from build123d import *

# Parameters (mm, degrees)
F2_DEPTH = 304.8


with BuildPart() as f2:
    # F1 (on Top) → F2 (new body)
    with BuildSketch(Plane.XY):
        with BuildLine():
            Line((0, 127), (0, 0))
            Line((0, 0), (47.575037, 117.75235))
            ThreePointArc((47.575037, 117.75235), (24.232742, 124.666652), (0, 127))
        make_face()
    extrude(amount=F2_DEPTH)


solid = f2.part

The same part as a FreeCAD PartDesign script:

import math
import FreeCAD as App
import Part
import Sketcher
from FreeCAD import Vector
Q = App.Units.Quantity

doc = App.newDocument("Part")
params = doc.addObject("Spreadsheet::Sheet", "Params")
for row, (alias, value) in enumerate([
    ("sketch1_height", "5 in"),
    ("sketch1_length", "5 in"),
    ("pad1_length", "12 in"),
], start=1):
    params.set(f"A{row}", alias)
    params.set(f"B{row}", "=" + value)
    params.setAlias(f"B{row}", alias)

body = doc.addObject("PartDesign::Body", "Body")

# Sketch on XY plane
sketch1 = body.newObject("Sketcher::SketchObject", "Sketch")
sketch1.AttachmentSupport = (doc.getObject("XY_Plane"), [""])
sketch1.MapMode = "FlatFace"
sketch1.addGeometry([
    Part.LineSegment(Vector(0, 127, 0), Vector(0, 0, 0)),
    Part.LineSegment(Vector(0, 0, 0), Vector(48, 118, 0)),
    Part.ArcOfCircle(Part.Circle(Vector(0, 0, 0), Vector(0, 0, 1), 127), math.radians(68), math.radians(90)),
], False)
sketch1.addConstraint([
    Sketcher.Constraint("Coincident", 0, 2, 1, 1),
    Sketcher.Constraint("Coincident", 1, 2, 2, 1),
    Sketcher.Constraint("Coincident", 2, 2, 0, 1),
    Sketcher.Constraint("Vertical", 0),
    Sketcher.Constraint("Coincident", 0, 2, -1, 1),
    Sketcher.Constraint("DistanceY", 0, 2, 0, 1, Q("5 in")),
    Sketcher.Constraint("Distance", 1, Q("5 in")),
    Sketcher.Constraint("Angle", 1, Q("68 deg")),
    Sketcher.Constraint("Radius", 2, 127.000028),
])
sketch1.setExpression("Constraints[5]", "Params.sketch1_height")
sketch1.setExpression("Constraints[6]", "Params.sketch1_length")
pad1 = body.newObject("PartDesign::Pad", "Pad")
pad1.Profile = sketch1
pad1.setExpression("Length", "Params.pad1_length")

doc.recompute()
